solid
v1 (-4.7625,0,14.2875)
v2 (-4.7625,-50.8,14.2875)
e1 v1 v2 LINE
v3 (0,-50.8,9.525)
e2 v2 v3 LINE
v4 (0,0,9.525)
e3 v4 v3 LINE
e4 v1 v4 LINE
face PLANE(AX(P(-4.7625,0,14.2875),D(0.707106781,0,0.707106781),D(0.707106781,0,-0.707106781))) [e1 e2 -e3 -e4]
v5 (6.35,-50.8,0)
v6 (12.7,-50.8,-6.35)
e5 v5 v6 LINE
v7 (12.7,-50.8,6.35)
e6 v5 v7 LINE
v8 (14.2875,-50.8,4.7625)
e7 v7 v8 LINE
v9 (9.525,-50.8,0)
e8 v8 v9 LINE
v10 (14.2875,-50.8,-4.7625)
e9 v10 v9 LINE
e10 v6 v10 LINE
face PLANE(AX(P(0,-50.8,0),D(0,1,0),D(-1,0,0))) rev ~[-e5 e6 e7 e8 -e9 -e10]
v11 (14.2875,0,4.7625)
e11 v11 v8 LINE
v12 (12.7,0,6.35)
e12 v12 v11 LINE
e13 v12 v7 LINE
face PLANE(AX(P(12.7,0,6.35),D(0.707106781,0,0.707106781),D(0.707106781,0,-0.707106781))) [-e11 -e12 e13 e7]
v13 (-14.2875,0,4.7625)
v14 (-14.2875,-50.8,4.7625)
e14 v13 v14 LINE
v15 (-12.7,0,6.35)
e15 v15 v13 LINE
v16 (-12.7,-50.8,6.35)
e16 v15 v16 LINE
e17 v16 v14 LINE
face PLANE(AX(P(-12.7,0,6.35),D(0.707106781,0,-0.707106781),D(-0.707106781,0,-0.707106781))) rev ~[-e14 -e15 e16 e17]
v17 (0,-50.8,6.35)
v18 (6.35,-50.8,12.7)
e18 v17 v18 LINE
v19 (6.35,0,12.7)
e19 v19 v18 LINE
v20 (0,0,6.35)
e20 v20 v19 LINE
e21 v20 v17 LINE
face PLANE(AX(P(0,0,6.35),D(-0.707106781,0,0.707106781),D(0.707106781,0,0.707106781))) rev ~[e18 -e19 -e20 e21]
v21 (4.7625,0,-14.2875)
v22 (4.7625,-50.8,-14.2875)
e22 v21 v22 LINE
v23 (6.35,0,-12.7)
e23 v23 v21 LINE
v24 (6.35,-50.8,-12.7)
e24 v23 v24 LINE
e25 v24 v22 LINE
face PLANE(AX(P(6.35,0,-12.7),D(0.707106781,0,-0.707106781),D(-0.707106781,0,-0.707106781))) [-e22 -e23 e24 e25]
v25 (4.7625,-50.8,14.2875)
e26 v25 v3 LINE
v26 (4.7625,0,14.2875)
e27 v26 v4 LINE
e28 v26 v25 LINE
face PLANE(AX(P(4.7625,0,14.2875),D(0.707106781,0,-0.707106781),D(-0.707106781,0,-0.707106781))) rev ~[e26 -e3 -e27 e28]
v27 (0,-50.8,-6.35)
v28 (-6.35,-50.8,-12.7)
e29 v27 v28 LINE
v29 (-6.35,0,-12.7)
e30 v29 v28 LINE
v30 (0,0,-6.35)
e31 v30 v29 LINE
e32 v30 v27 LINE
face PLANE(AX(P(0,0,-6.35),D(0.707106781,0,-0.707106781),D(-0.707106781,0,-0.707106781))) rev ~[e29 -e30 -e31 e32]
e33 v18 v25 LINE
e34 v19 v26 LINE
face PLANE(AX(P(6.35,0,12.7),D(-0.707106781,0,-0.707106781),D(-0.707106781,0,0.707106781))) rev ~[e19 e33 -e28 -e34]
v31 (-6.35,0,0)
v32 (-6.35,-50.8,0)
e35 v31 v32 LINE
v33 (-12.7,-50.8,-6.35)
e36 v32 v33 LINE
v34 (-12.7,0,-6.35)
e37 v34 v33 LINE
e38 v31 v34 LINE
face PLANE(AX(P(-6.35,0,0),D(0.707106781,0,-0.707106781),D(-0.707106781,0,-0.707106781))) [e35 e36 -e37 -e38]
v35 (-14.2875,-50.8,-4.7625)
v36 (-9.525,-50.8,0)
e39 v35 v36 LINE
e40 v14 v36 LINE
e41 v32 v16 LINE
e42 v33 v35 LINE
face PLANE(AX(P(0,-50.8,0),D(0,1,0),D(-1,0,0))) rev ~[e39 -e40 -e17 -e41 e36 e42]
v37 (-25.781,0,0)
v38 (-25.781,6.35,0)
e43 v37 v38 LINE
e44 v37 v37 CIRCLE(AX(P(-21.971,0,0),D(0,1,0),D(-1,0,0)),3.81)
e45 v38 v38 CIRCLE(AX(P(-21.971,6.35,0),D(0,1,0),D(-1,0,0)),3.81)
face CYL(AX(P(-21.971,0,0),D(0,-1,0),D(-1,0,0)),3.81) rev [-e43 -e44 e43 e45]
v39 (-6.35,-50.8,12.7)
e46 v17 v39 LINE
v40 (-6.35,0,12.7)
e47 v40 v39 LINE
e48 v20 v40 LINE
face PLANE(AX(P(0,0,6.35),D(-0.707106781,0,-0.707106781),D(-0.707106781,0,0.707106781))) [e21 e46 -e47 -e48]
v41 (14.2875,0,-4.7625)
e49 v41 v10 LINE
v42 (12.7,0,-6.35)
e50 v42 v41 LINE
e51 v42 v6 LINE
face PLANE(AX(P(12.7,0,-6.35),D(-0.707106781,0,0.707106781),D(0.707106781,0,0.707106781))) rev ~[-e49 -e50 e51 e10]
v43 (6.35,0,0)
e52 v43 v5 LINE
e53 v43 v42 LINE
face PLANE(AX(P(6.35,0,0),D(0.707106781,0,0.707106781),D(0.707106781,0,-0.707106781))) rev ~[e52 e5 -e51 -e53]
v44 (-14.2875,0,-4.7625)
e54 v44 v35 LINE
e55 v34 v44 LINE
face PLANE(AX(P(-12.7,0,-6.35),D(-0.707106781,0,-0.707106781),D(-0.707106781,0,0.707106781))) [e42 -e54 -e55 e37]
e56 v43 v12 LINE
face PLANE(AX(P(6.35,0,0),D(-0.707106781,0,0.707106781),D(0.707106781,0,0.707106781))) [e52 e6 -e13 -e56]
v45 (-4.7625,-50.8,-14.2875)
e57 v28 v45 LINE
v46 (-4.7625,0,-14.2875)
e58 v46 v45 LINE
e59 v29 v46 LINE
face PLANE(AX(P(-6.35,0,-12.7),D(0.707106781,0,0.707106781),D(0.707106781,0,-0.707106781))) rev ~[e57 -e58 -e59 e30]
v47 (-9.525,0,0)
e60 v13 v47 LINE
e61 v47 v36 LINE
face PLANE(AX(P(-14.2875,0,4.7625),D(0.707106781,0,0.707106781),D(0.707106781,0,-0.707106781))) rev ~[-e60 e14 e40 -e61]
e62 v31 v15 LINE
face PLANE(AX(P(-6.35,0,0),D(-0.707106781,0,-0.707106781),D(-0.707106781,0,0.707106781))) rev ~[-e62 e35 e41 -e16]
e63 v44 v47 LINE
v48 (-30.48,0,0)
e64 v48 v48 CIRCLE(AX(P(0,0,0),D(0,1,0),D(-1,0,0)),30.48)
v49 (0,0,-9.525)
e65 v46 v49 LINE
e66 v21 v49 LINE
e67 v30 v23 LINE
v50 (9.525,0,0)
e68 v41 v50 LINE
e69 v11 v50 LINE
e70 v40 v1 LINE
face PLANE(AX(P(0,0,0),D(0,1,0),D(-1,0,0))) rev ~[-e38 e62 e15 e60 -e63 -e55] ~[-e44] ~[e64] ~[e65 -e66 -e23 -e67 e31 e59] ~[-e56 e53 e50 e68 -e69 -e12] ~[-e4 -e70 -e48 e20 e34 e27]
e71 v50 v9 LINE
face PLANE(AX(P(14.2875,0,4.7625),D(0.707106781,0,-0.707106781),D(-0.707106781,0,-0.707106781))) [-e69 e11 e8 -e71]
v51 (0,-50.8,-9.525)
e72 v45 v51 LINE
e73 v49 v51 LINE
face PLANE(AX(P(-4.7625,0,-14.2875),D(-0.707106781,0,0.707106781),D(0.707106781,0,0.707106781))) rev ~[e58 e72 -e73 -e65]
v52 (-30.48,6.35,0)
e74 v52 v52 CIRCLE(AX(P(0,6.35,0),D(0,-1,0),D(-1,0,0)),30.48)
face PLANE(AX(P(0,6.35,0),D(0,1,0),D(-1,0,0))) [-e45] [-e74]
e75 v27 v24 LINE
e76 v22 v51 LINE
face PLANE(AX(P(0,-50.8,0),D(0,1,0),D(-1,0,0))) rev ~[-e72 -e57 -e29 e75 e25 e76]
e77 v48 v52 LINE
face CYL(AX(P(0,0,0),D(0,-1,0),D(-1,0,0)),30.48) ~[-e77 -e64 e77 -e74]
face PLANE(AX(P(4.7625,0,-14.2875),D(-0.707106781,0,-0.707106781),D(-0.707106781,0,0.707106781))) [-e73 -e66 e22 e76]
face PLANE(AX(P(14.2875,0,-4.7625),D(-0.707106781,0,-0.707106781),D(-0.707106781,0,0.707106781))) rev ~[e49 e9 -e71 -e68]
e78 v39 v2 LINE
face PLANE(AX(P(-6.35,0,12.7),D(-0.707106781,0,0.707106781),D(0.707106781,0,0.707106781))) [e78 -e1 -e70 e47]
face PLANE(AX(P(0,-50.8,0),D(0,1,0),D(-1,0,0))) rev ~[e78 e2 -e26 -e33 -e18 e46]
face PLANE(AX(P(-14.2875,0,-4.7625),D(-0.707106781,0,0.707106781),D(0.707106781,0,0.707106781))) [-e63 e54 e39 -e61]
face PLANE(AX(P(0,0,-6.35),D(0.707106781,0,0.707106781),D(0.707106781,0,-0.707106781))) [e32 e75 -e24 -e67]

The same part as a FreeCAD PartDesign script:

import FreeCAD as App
import Part
import Sketcher
from FreeCAD import Vector
Q = App.Units.Quantity

doc = App.newDocument("Part")
body = doc.addObject("PartDesign::Body", "Body")

# Sketch on XZ plane
sketch1 = body.newObject("Sketcher::SketchObject", "Sketch")
sketch1.AttachmentSupport = (doc.getObject("XZ_Plane"), [""])
sketch1.MapMode = "FlatFace"
sketch1.addGeometry(Part.Circle(Vector(0, 0, 0), Vector(0, 0, 1), 30), False)
sketch1.addConstraint([
    Sketcher.Constraint("Coincident", 0, 3, -1, 1),
    Sketcher.Constraint("Diameter", 0, Q("2.4 in")),
])
pad1 = body.newObject("PartDesign::Pad", "Pad")
pad1.Profile = sketch1
pad1.Length = Q("0.25 in")
pad1.Reversed = True

# Sketch on XZ plane
sketch2 = body.newObject("Sketcher::SketchObject", "Sketch001")
sketch2.AttachmentSupport = (doc.getObject("XZ_Plane"), [""])
sketch2.MapMode = "FlatFace"
sketch2.addGeometry([
    Part.LineSegment(Vector(-4.8, 14.3, 0), Vector(0, 9.5, 0)),  # 0
    Part.LineSegment(Vector(0, 9.5, 0), Vector(4.8, 14.3, 0)),  # 1
    Part.LineSegment(Vector(4.8, 14.3, 0), Vector(6.3, 12.7, 0)),  # 2
    Part.LineSegment(Vector(6.3, 12.7, 0), Vector(0, 6.3, 0)),  # 3
    Part.LineSegment(Vector(0, 6.3, 0), Vector(-6.3, 12.7, 0)),  # 4
    Part.LineSegment(Vector(-6.3, 12.7, 0), Vector(-4.8, 14.3, 0)),  # 5
    Part.LineSegment(Vector(4.8, -14.3, 0), Vector(0, -9.5, 0)),  # 6
    Part.LineSegment(Vector(0, -9.5, 0), Vector(-4.8, -14.3, 0)),  # 7
    Part.LineSegment(Vector(-4.8, -14.3, 0), Vector(-6.3, -12.7, 0)),  # 8
    Part.LineSegment(Vector(-6.3, -12.7, 0), Vector(0, -6.3, 0)),  # 9
    Part.LineSegment(Vector(0, -6.3, 0), Vector(6.3, -12.7, 0)),  # 10
    Part.LineSegment(Vector(6.3, -12.7, 0), Vector(4.8, -14.3, 0)),  # 11
    Part.LineSegment(Vector(14.3, 4.8, 0), Vector(9.5, 0, 0)),  # 12
    Part.LineSegment(Vector(9.5, 0, 0), Vector(14.3, -4.8, 0)),  # 13
    Part.LineSegment(Vector(14.3, -4.8, 0), Vector(12.7, -6.3, 0)),  # 14
    Part.LineSegment(Vector(12.7, -6.3, 0), Vector(6.3, 0, 0)),  # 15
    Part.LineSegment(Vector(6.3, 0, 0), Vector(12.7, 6.3, 0)),  # 16
    Part.LineSegment(Vector(12.7, 6.3, 0), Vector(14.3, 4.8, 0)),  # 17
    Part.LineSegment(Vector(-14.3, -4.8, 0), Vector(-9.5, 0, 0)),  # 18
    Part.LineSegment(Vector(-9.5, 0, 0), Vector(-14.3, 4.8, 0)),  # 19
    Part.LineSegment(Vector(-14.3, 4.8, 0), Vector(-12.7, 6.3, 0)),  # 20
    Part.LineSegment(Vector(-12.7, 6.3, 0), Vector(-6.3, 0, 0)),  # 21
    Part.LineSegment(Vector(-6.3, 0, 0), Vector(-12.7, -6.3, 0)),  # 22
    Part.LineSegment(Vector(-12.7, -6.3, 0), Vector(-14.3, -4.8, 0)),  # 23
], False)
sketch2.addConstraint([
    Sketcher.Constraint("Coincident", 0, 2, 1, 1),
    Sketcher.Constraint("Coincident", 1, 2, 2, 1),
    Sketcher.Constraint("Coincident", 2, 2, 3, 1),
    Sketcher.Constraint("Coincident", 3, 2, 4, 1),
    Sketcher.Constraint("Coincident", 4, 2, 5, 1),
    Sketcher.Constraint("Coincident", 5, 2, 0, 1),
    Sketcher.Constraint("Coincident", 6, 2, 7, 1),
    Sketcher.Constraint("Coincident", 7, 2, 8, 1),
    Sketcher.Constraint("Coincident", 8, 2, 9, 1),
    Sketcher.Constraint("Coincident", 9, 2, 10, 1),
    Sketcher.Constraint("Coincident", 10, 2, 11, 1),
    Sketcher.Constraint("Coincident", 11, 2, 6, 1),
    Sketcher.Constraint("Coincident", 12, 2, 13, 1),
    Sketcher.Constraint("Coincident", 13, 2, 14, 1),
    Sketcher.Constraint("Coincident", 14, 2, 15, 1),
    Sketcher.Constraint("Coincident", 15, 2, 16, 1),
    Sketcher.Constraint("Coincident", 16, 2, 17, 1),
    Sketcher.Constraint("Coincident", 17, 2, 12, 1),
    Sketcher.Constraint("Coincident", 18, 2, 19, 1),
    Sketcher.Constraint("Coincident", 19, 2, 20, 1),
    Sketcher.Constraint("Coincident", 20, 2, 21, 1),
    Sketcher.Constraint("Coincident", 21, 2, 22, 1),
    Sketcher.Constraint("Coincident", 22, 2, 23, 1),
    Sketcher.Constraint("Coincident", 23, 2, 18, 1),
    Sketcher.Constraint("Symmetric", 0, 2, 6, 2, -1, 1),
    Sketcher.Constraint("Symmetric", 1, 2, 7, 2, -1, 1),
    Sketcher.Constraint("Symmetric", 2, 2, 8, 2, -1, 1),
    Sketcher.Constraint("Symmetric", 3, 2, 9, 2, -1, 1),
    Sketcher.Constraint("Symmetric", 4, 2, 10, 2, -1, 1),
    Sketcher.Constraint("Symmetric", 5, 2, 11, 2, -1, 1),
    Sketcher.Constraint("Symmetric", 12, 2, 18, 2, -1, 1),
    Sketcher.Constraint("Symmetric", 13, 2, 19, 2, -1, 1),
    Sketcher.Constraint("Symmetric", 14, 2, 20, 2, -1, 1),
    Sketcher.Constraint("Symmetric", 15, 2, 21, 2, -1, 1),
    Sketcher.Constraint("Symmetric", 16, 2, 22, 2, -1, 1),
    Sketcher.Constraint("Symmetric", 17, 2, 23, 2, -1, 1),
    Sketcher.Constraint("Symmetric", 2, 2, 4, 2, -2),
    Sketcher.Constraint("Symmetric", 1, 2, 5, 2, -2),
    Sketcher.Constraint("Symmetric", 17, 2, 19, 2, -2),
    Sketcher.Constraint("Symmetric", 16, 2, 20, 2, -2),
    Sketcher.Constraint("PointOnObject", 0, 2, -2),
    Sketcher.Constraint("PointOnObject", 3, 2, -2),
    Sketcher.Constraint("PointOnObject", 12, 2, -1),
    Sketcher.Constraint("PointOnObject", 15, 2, -1),
    Sketcher.Constraint("Perpendicular", 0, 1),
    Sketcher.Constraint("Perpendicular", 1, 2),
    Sketcher.Constraint("Perpendicular", 2, 3),
    Sketcher.Constraint("Parallel", 11, 12),
    Sketcher.Constraint("Perpendicular", 13, 14),
    Sketcher.Constraint("Perpendicular", 14, 15),
    Sketcher.Constraint("Horizontal", 9, 2, 14, 2),
    Sketcher.Constraint("Vertical", 10, 2, 15, 2),
    Sketcher.Constraint("Equal", 7, 12),
    Sketcher.Constraint("Equal", 11, 14),
    Sketcher.Constraint("DistanceX", -1, 1, 2, 2, Q("0.25 in")),
    Sketcher.Constraint("DistanceY", 0, 2, 2, 2, Q("0.125 in")),
])
pad2 = body.newObject("PartDesign::Pad", "Pad001")
pad2.Profile = sketch2
pad2.Length = Q("2 in")

# Sketch on XZ plane
sketch3 = body.newObject("Sketcher::SketchObject", "Sketch002")
sketch3.AttachmentSupport = (doc.getObject("XZ_Plane"), [""])
sketch3.MapMode = "FlatFace"
sketch3.addGeometry(Part.Circle(Vector(-22, 0, 0), Vector(0, 0, 1), 3.8), False)
sketch3.addConstraint([
    Sketcher.Constraint("PointOnObject", 0, 3, -1),
    Sketcher.Constraint("Diameter", 0, Q("0.3 in")),
    Sketcher.Constraint("DistanceX", 0, 3, -1, 1, Q("0.865 in")),
])
pocket1 = body.newObject("PartDesign::Pocket", "Pocket")
pocket1.Profile = sketch3
pocket1.Length = Q("0.25 in")

doc.recompute()
